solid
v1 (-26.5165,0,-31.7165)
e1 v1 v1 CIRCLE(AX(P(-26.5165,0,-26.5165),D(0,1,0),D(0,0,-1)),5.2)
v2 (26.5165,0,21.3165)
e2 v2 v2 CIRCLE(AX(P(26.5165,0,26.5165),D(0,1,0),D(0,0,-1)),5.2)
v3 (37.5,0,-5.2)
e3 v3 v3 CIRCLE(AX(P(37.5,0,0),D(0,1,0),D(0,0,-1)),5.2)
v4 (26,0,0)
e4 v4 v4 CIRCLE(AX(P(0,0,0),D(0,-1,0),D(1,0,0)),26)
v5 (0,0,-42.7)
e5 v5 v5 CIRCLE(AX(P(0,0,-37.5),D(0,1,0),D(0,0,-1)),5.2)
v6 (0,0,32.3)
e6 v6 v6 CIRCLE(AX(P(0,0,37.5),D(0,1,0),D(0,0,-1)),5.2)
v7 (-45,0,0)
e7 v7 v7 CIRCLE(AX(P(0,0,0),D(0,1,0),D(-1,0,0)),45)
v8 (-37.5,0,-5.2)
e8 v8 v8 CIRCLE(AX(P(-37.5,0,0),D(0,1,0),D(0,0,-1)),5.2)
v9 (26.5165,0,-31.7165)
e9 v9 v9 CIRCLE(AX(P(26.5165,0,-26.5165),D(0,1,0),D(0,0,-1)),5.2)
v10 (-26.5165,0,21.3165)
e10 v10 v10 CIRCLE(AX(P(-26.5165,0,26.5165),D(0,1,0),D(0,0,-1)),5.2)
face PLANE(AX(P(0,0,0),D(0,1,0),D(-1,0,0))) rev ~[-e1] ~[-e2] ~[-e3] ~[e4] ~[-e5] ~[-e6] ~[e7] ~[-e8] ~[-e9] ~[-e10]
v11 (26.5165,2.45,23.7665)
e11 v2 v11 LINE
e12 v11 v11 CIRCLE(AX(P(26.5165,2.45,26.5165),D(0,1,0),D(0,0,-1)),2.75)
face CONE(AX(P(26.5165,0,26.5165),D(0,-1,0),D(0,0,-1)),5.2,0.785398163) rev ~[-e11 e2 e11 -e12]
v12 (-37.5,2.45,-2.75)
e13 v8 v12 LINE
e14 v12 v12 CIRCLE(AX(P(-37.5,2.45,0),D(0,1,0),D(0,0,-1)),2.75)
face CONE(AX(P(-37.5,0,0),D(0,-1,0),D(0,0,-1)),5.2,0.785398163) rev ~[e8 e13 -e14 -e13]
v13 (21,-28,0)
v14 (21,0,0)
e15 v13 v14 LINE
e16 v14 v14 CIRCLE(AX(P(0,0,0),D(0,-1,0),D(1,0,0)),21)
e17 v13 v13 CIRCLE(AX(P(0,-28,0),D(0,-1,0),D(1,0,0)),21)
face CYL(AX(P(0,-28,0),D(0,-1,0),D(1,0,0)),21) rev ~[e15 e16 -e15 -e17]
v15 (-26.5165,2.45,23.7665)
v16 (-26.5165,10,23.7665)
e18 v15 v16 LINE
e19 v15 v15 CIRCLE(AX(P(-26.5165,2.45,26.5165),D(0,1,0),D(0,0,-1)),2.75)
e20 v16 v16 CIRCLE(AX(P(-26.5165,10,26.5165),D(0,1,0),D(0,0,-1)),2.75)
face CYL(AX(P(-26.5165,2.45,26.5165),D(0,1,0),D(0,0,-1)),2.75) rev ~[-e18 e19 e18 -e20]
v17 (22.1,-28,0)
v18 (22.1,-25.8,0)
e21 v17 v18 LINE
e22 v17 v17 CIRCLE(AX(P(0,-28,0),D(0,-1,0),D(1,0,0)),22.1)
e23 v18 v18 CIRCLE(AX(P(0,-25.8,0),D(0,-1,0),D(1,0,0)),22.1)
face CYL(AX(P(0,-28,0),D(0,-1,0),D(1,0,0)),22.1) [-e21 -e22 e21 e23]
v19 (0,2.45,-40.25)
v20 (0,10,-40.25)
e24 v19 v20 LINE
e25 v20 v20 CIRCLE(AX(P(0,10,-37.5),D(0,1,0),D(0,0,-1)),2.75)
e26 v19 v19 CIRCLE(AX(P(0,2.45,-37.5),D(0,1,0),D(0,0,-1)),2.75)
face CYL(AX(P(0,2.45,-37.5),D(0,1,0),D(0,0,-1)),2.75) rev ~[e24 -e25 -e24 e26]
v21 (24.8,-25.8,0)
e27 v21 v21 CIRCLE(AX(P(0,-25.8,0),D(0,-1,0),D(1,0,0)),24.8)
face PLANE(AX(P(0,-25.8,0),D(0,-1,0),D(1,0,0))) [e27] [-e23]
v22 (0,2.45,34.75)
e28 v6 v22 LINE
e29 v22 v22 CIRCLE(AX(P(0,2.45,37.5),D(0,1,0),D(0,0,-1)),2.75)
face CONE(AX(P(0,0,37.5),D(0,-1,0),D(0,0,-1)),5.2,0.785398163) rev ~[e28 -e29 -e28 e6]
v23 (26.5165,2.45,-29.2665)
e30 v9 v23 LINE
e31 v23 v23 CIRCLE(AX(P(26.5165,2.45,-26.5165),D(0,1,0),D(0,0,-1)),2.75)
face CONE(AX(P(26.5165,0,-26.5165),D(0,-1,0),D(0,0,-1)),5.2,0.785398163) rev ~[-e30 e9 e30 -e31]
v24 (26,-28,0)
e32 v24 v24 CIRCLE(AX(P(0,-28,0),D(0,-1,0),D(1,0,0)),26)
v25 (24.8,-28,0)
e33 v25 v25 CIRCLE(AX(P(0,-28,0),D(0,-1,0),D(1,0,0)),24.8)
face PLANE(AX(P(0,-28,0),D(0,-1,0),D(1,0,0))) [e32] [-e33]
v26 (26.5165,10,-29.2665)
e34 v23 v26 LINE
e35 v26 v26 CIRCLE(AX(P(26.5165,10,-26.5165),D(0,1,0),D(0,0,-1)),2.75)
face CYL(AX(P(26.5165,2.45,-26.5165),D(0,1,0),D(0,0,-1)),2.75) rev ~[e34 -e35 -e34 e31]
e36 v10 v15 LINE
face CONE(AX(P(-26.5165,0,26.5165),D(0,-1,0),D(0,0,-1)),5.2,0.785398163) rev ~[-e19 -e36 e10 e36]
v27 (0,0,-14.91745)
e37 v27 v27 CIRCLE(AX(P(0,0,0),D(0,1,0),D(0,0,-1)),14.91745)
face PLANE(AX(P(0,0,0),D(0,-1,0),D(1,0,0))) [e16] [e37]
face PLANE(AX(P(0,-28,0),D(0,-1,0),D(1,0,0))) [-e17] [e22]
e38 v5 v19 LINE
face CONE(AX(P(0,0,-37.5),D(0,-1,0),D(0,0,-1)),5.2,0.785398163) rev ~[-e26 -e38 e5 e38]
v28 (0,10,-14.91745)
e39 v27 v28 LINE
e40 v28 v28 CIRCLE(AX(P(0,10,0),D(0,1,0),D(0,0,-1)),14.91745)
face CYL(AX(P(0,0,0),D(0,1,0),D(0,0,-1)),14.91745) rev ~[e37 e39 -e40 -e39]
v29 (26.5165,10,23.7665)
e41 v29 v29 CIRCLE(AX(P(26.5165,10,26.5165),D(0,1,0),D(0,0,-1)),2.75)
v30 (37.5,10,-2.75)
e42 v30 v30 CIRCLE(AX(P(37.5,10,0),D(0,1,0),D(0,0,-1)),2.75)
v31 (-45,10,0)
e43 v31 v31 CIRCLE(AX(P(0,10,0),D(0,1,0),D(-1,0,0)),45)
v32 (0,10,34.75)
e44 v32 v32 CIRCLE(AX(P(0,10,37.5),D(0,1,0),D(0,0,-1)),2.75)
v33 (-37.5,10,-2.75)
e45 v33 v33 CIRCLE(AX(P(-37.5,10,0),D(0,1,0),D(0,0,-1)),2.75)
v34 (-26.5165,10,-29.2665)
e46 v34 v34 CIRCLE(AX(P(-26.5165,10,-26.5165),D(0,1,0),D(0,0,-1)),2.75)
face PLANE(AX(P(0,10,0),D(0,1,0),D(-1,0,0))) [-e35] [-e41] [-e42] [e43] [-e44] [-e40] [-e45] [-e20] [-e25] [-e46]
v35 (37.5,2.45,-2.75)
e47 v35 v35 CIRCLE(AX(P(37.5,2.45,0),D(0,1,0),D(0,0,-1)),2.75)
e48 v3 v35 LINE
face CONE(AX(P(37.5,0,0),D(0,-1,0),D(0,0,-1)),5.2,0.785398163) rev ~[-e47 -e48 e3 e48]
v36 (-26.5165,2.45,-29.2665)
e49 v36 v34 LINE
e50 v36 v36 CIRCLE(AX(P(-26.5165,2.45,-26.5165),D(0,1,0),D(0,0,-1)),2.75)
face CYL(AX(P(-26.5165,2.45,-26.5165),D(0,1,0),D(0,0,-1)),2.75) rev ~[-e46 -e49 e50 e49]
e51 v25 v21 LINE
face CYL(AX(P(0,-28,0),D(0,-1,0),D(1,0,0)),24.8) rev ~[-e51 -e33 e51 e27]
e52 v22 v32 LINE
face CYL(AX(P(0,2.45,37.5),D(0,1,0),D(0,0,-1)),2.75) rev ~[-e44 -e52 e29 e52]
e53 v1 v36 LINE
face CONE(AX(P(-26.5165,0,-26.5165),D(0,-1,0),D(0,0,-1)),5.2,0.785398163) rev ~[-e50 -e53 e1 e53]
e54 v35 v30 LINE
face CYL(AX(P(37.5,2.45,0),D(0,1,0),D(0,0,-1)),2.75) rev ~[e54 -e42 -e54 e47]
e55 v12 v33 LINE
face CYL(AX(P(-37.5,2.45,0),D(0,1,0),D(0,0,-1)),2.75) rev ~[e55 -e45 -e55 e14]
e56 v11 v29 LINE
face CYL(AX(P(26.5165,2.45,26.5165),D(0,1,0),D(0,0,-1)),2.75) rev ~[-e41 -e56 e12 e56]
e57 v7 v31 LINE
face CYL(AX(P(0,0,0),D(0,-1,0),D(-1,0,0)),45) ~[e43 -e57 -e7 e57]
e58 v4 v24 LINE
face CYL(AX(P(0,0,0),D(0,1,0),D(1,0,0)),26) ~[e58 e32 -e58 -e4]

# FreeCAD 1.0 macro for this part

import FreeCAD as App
import Part
import Sketcher

V = App.Vector

doc = App.newDocument("Part")
params = doc.addObject("Spreadsheet::Sheet", "Params")
for row, (alias, value) in enumerate([
    ("sketch1_diameter", "90 mm"),
    ("pad1_length", "10 mm"),
    ("sketch2_diameter", "52 mm"),
    ("pad2_length", "28 mm"),
    ("sketch3_diameter", "42 mm"),
    ("pocket1_length", "28 mm"),
    ("sketch4_diameter", "49.6 mm"),
    ("sketch4_diameter2", "44.2 mm"),
    ("pocket2_length", "2.2 mm"),
    ("hole_diameter", "29.8349 mm"),
    ("sketch6_diameter", "5.5 mm"),
    ("hole2_diameter", "5.5 mm"),
    ("hole2_csink_diameter", "10.4 mm"),
], start=1):
    params.set(f"A{row}", alias)
    params.set(f"B{row}", "=" + value)
    params.setAlias(f"B{row}", alias)

body = doc.addObject("PartDesign::Body", "Body")

# Sketch on XZ plane
sketch1 = doc.addObject("Sketcher::SketchObject", "Sketch")
body.addObject(sketch1)
sketch1.AttachmentSupport = (doc.XZ_Plane, [""])
sketch1.MapMode = "FlatFace"
sketch1.addGeometry(Part.Circle(V(0, 0, 0), V(0, 0, 1), 45), False)
sketch1.addConstraint([
    Sketcher.Constraint("Coincident", 0, 3, -1, 1),
    Sketcher.Constraint("Diameter", 0, 90.0),
])
sketch1.setExpression("Constraints[1]", "Params.sketch1_diameter")
pad1 = doc.addObject("PartDesign::Pad", "Pad")
body.addObject(pad1)
pad1.Profile = sketch1
pad1.setExpression("Length", "Params.pad1_length")
pad1.Reversed = True

# Sketch on XZ plane
sketch2 = doc.addObject("Sketcher::SketchObject", "Sketch001")
body.addObject(sketch2)
sketch2.AttachmentSupport = (doc.XZ_Plane, [""])
sketch2.MapMode = "FlatFace"
sketch2.addGeometry(Part.Circle(V(0, 0, 0), V(0, 0, 1), 26), False)
sketch2.addConstraint([
    Sketcher.Constraint("Coincident", 0, 3, -1, 1),
    Sketcher.Constraint("Diameter", 0, 52.0),
])
sketch2.setExpression("Constraints[1]", "Params.sketch2_diameter")
pad2 = doc.addObject("PartDesign::Pad", "Pad001")
body.addObject(pad2)
pad2.Profile = sketch2
pad2.setExpression("Length", "Params.pad2_length")

# Sketch on XZ plane
sketch3 = doc.addObject("Sketcher::SketchObject", "Sketch002")
body.addObject(sketch3)
sketch3.AttachmentSupport = (doc.XZ_Plane, [""])
sketch3.MapMode = "FlatFace"
sketch3.AttachmentOffset = App.Placement(V(0, 0, 28), App.Rotation())
sketch3.addGeometry(Part.Circle(V(0, 0, 0), V(0, 0, 1), 21), False)
sketch3.addConstraint([
    Sketcher.Constraint("Coincident", 0, 3, -1, 1),
    Sketcher.Constraint("Diameter", 0, 42.0),
])
sketch3.setExpression("Constraints[1]", "Params.sketch3_diameter")
pocket1 = doc.addObject("PartDesign::Pocket", "Pocket")
body.addObject(pocket1)
pocket1.Profile = sketch3
pocket1.setExpression("Length", "Params.pocket1_length")

# Sketch on XZ plane
sketch4 = doc.addObject("Sketcher::SketchObject", "Sketch003")
body.addObject(sketch4)
sketch4.AttachmentSupport = (doc.XZ_Plane, [""])
sketch4.MapMode = "FlatFace"
sketch4.AttachmentOffset = App.Placement(V(0, 0, 28), App.Rotation())
sketch4.addGeometry([
    Part.Circle(V(0, 0, 0), V(0, 0, 1), 25),
    Part.Circle(V(0, 0, 0), V(0, 0, 1), 22),
], False)
sketch4.addConstraint([
    Sketcher.Constraint("Coincident", 0, 3, -1, 1),
    Sketcher.Constraint("Coincident", 1, 3, -1, 1),
    Sketcher.Constraint("Diameter", 0, 49.6),
    Sketcher.Constraint("Diameter", 1, 44.2),
])
sketch4.setExpression("Constraints[2]", "Params.sketch4_diameter")
sketch4.setExpression("Constraints[3]", "Params.sketch4_diameter2")
pocket2 = doc.addObject("PartDesign::Pocket", "Pocket001")
body.addObject(pocket2)
pocket2.Profile = sketch4
pocket2.setExpression("Length", "Params.pocket2_length")

# Sketch on XZ plane
sketch5 = doc.addObject("Sketcher::SketchObject", "Sketch004")
body.addObject(sketch5)
sketch5.AttachmentSupport = (doc.XZ_Plane, [""])
sketch5.MapMode = "FlatFace"
sketch5.addGeometry(Part.Circle(V(0, 0, 0), V(0, 0, 1), 15), False)
sketch5.addConstraint([
    Sketcher.Constraint("Coincident", 0, 3, -1, 1),
    Sketcher.Constraint("Diameter", 0, 29.835),
])
doc.recompute()
hole = doc.addObject("PartDesign::Hole", "Hole")
body.addObject(hole)
hole.Profile = sketch5
hole.ThreadType = "None"
hole.setExpression("Diameter", "Params.hole_diameter")
hole.DepthType = "ThroughAll"

# Sketch on XZ plane
sketch6 = doc.addObject("Sketcher::SketchObject", "Sketch005")
body.addObject(sketch6)
sketch6.AttachmentSupport = (doc.XZ_Plane, [""])
sketch6.MapMode = "FlatFace"
sketch6.addGeometry([
    Part.Circle(V(0, 37.5, 0), V(0, 0, 1), 2.8),  # 0
    Part.Circle(V(-26.5, 26.5, 0), V(0, 0, 1), 2.8),  # 1
    Part.Circle(V(-37.5, 0, 0), V(0, 0, 1), 2.8),  # 2
    Part.Circle(V(-26.5, -26.5, 0), V(0, 0, 1), 2.8),  # 3
    Part.Circle(V(0, -37.5, 0), V(0, 0, 1), 2.8),  # 4
    Part.Circle(V(26.5, -26.5, 0), V(0, 0, 1), 2.8),  # 5
    Part.Circle(V(37.5, 0, 0), V(0, 0, 1), 2.8),  # 6
    Part.Circle(V(26.5, 26.5, 0), V(0, 0, 1), 2.8),  # 7
], False)
sketch6.addConstraint([
    Sketcher.Constraint("Equal", 0, 1),
    Sketcher.Constraint("Equal", 1, 2),
    Sketcher.Constraint("Equal", 2, 3),
    Sketcher.Constraint("Equal", 3, 4),
    Sketcher.Constraint("Equal", 4, 5),
    Sketcher.Constraint("Equal", 5, 6),
    Sketcher.Constraint("Equal", 6, 7),
    Sketcher.Constraint("Symmetric", 0, 3, 4, 3, -1, 1),
    Sketcher.Constraint("Symmetric", 1, 3, 5, 3, -1, 1),
    Sketcher.Constraint("Symmetric", 2, 3, 6, 3, -1, 1),
    Sketcher.Constraint("Symmetric", 3, 3, 7, 3, -1, 1),
    Sketcher.Constraint("Symmetric", 3, 3, 5, 3, -2),
    Sketcher.Constraint("PointOnObject", 0, 3, -2),
    Sketcher.Constraint("PointOnObject", 2, 3, -1),
    Sketcher.Constraint("Diameter", 0, 5.5),
    Sketcher.Constraint("DistanceY", 4, 3, 0, 3, 75.0),
    Sketcher.Constraint("DistanceX", 2, 3, -1, 1, 37.5),
    Sketcher.Constraint("DistanceY", 3, 3, 1, 3, 53.033),
    Sketcher.Constraint("DistanceX", 3, 3, 5, 3, 53.033),
])
sketch6.setExpression("Constraints[14]", "Params.sketch6_diameter")
doc.recompute()
hole2 = doc.addObject("PartDesign::Hole", "Hole001")
body.addObject(hole2)
hole2.Profile = sketch6
hole2.ThreadType = "None"
hole2.setExpression("Diameter", "Params.hole2_diameter")
hole2.DepthType = "ThroughAll"
hole2.HoleCutType = "Countersink"
hole2.setExpression("HoleCutDiameter", "Params.hole2_csink_diameter")
hole2.HoleCutCountersinkAngle = 90

doc.recompute()
